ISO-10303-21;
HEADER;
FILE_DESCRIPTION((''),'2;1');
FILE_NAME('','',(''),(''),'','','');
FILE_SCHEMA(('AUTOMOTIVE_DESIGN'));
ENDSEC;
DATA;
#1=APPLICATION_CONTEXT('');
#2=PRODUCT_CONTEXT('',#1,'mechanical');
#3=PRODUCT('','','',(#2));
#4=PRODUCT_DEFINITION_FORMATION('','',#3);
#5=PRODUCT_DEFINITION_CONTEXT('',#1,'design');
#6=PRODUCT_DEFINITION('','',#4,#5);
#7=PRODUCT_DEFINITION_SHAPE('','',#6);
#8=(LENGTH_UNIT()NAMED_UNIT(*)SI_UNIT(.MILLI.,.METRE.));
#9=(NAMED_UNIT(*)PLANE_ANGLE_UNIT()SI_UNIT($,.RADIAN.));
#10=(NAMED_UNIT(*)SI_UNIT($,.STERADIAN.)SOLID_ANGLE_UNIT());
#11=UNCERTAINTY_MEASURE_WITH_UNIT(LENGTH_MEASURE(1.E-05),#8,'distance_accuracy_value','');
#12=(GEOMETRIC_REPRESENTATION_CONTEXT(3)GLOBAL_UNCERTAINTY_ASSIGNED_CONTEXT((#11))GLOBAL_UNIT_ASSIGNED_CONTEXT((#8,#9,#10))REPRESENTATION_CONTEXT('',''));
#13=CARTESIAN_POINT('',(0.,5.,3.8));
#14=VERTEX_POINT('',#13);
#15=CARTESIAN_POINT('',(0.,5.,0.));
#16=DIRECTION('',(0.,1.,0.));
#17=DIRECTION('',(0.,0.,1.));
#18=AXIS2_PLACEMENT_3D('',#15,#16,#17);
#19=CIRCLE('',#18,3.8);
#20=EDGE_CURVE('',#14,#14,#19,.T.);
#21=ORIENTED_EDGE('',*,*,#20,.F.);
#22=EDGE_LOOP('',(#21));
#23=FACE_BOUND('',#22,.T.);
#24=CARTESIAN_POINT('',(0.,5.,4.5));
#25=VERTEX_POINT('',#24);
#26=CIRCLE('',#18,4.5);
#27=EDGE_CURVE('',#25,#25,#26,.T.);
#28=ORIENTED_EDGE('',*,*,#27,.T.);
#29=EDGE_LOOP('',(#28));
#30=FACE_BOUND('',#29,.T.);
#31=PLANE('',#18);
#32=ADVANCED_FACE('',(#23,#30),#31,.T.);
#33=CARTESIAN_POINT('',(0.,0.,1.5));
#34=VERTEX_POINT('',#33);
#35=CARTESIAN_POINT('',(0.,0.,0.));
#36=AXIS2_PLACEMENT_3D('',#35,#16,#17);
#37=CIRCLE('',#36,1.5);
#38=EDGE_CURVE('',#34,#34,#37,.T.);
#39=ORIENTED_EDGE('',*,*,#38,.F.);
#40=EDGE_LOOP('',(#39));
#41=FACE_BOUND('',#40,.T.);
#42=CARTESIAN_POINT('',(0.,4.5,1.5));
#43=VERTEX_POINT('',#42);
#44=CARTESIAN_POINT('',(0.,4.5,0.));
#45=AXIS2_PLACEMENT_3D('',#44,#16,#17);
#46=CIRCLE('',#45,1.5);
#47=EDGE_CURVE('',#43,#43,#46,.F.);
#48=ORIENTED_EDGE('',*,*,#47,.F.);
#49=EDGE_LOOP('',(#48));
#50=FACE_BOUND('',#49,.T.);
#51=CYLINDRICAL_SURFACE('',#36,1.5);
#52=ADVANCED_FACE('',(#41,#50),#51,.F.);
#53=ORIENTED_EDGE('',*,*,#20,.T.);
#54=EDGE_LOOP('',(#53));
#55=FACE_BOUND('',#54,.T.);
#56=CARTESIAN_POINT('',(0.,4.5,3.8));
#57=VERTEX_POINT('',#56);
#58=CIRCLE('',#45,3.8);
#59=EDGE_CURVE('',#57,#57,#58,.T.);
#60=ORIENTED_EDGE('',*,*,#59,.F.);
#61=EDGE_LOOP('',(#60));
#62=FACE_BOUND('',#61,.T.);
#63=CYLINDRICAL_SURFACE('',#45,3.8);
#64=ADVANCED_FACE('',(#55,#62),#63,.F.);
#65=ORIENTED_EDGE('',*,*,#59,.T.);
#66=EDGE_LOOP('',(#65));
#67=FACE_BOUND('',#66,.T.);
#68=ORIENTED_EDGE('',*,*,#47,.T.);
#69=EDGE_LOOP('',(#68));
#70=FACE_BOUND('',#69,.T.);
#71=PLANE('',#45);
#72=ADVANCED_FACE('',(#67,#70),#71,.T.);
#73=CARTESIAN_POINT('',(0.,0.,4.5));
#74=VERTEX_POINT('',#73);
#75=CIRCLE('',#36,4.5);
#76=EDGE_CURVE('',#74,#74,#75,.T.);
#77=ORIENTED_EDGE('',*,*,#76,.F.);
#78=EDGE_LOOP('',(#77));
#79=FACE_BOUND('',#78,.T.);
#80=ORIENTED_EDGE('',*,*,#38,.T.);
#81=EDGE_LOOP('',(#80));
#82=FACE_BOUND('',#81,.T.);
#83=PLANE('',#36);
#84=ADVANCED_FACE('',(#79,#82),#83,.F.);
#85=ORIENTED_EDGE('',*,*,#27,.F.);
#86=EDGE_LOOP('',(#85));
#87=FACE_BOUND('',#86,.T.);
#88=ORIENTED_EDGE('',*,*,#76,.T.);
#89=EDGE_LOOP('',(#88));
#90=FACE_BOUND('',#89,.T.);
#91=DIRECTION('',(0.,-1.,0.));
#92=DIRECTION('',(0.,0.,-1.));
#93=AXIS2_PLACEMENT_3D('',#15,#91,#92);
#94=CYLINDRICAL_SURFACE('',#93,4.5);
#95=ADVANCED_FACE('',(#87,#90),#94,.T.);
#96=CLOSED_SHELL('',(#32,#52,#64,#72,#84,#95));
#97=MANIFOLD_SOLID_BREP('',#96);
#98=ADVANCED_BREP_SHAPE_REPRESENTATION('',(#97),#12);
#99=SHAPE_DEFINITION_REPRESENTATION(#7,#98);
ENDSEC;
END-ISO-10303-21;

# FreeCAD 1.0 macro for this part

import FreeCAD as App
import Part
import Sketcher

doc = App.newDocument("Part")
params = doc.addObject("Spreadsheet::Sheet", "Params")
for row, (alias, value) in enumerate([
    ("sketch1_diameter", "9 mm"),
    ("pad1_length", "5 mm"),
    ("sketch2_diameter", "3 mm"),
    ("sketch3_diameter", "7.6 mm"),
    ("pocket2_length", "0.5 mm"),
], start=1):
    params.set(f"A{row}", alias)
    params.set(f"B{row}", "=" + value)
    params.setAlias(f"B{row}", alias)

body = doc.addObject("PartDesign::Body", "Body")

# Sketch on XZ plane
sketch1 = doc.addObject("Sketcher::SketchObject", "Sketch")
body.addObject(sketch1)
sketch1.AttachmentSupport = (doc.XZ_Plane, [""])
sketch1.MapMode = "FlatFace"
sketch1.addGeometry(Part.Circle(App.Vector(0, 0, 0), App.Vector(0, 0, 1), 4.5), False)
sketch1.addConstraint([
    Sketcher.Constraint("Coincident", 0, 3, -1, 1),
    Sketcher.Constraint("Diameter", 0, 9.0),
])
sketch1.setExpression("Constraints[1]", "Params.sketch1_diameter")
pad1 = doc.addObject("PartDesign::Pad", "Pad")
body.addObject(pad1)
pad1.Profile = sketch1
pad1.setExpression("Length", "Params.pad1_length")
pad1.Reversed = True

# Sketch on XZ plane
sketch2 = doc.addObject("Sketcher::SketchObject", "Sketch001")
body.addObject(sketch2)
sketch2.AttachmentSupport = (doc.XZ_Plane, [""])
sketch2.MapMode = "FlatFace"
sketch2.AttachmentOffset = App.Placement(App.Vector(0, 0, -5), App.Rotation())
sketch2.addGeometry(Part.Circle(App.Vector(0, 0, 0), App.Vector(0, 0, 1), 1.5), False)
sketch2.addConstraint([
    Sketcher.Constraint("Coincident", 0, 3, -1, 1),
    Sketcher.Constraint("Diameter", 0, 3.0),
])
sketch2.setExpression("Constraints[1]", "Params.sketch2_diameter")
pocket1 = doc.addObject("PartDesign::Pocket", "Pocket")
body.addObject(pocket1)
pocket1.Profile = sketch2
pocket1.Type = "ThroughAll"
pocket1.Reversed = True

# Sketch on XZ plane
sketch3 = doc.addObject("Sketcher::SketchObject", "Sketch002")
body.addObject(sketch3)
sketch3.AttachmentSupport = (doc.XZ_Plane, [""])
sketch3.MapMode = "FlatFace"
sketch3.AttachmentOffset = App.Placement(App.Vector(0, 0, -5), App.Rotation())
sketch3.addGeometry(Part.Circle(App.Vector(0, 0, 0), App.Vector(0, 0, 1), 3.8), False)
sketch3.addConstraint([
    Sketcher.Constraint("Coincident", 0, 3, -1, 1),
    Sketcher.Constraint("Diameter", 0, 7.6),
])
sketch3.setExpression("Constraints[1]", "Params.sketch3_diameter")
pocket2 = doc.addObject("PartDesign::Pocket", "Pocket001")
body.addObject(pocket2)
pocket2.Profile = sketch3
pocket2.setExpression("Length", "Params.pocket2_length")
pocket2.Reversed = True

doc.recompute()
